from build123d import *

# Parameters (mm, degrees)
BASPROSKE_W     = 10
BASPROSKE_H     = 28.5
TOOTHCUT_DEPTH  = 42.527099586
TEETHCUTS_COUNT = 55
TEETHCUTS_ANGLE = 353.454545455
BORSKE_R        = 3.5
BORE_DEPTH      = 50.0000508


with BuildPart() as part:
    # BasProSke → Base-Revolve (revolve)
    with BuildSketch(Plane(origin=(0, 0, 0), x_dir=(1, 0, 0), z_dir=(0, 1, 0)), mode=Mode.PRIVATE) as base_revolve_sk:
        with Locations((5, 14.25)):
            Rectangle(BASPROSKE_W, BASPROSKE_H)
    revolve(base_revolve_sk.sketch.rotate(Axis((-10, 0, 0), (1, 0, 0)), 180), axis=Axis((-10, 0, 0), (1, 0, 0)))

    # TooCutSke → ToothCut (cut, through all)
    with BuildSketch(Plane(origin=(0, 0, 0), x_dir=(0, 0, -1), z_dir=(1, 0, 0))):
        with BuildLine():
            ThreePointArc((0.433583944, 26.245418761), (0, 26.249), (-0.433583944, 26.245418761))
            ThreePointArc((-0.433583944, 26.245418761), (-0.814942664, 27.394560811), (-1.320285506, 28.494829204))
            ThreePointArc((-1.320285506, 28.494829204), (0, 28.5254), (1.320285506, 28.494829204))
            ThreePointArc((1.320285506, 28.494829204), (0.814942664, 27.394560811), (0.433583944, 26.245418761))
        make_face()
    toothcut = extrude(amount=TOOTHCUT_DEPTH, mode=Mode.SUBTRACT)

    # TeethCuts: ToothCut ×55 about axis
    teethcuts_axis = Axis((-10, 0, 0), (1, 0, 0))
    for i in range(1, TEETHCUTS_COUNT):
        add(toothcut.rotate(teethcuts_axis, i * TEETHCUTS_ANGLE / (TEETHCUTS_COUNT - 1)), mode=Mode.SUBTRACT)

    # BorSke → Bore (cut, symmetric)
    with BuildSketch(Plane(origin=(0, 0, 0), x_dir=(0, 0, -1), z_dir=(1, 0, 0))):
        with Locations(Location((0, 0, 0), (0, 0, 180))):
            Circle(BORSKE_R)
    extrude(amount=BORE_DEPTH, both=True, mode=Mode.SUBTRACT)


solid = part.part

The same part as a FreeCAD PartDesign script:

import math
import FreeCAD as App
import Part
import Sketcher
from FreeCAD import Vector
Q = App.Units.Quantity

doc = App.newDocument("Part")
body = doc.addObject("PartDesign::Body", "Body")

sketch1 = body.newObject("Sketcher::SketchObject", "Sketch")
sketch1.AttachmentSupport = (doc.getObject("XZ_Plane"), [""])
sketch1.MapMode = "FlatFace"
sketch1.addGeometry([
    Part.LineSegment(Vector(0, -28, 0), Vector(0, 0, 0)),
    Part.LineSegment(Vector(0, 0, 0), Vector(10, 0, 0)),
    Part.LineSegment(Vector(10, 0, 0), Vector(10, -28, 0)),
    Part.LineSegment(Vector(10, -28, 0), Vector(0, -28, 0)),
], False)
sketch1.addConstraint([
    Sketcher.Constraint("Coincident", 0, 2, 1, 1),
    Sketcher.Constraint("Coincident", 1, 2, 2, 1),
    Sketcher.Constraint("Coincident", 2, 2, 3, 1),
    Sketcher.Constraint("Coincident", 3, 2, 0, 1),
    Sketcher.Constraint("Vertical", 0),
    Sketcher.Constraint("Horizontal", 1),
    Sketcher.Constraint("Vertical", 2),
    Sketcher.Constraint("Horizontal", 3),
    Sketcher.Constraint("Coincident", 0, 2, -1, 1),
    Sketcher.Constraint("DistanceX", 1, 1, 1, 2, Q("10 mm")),
    Sketcher.Constraint("DistanceY", 0, 1, 0, 2, Q("28.5 mm")),
])
revolution = body.newObject("PartDesign::Revolution", "Revolution")
revolution.Profile = sketch1
revolution.ReferenceAxis = (sketch1, ["H_Axis"])
revolution.Angle = 360

sketch2 = body.newObject("Sketcher::SketchObject", "Sketch001")
sketch2.AttachmentSupport = (doc.getObject("YZ_Plane"), [""])
sketch2.MapMode = "FlatFace"
sketch2.addGeometry([
    Part.ArcOfCircle(Part.Circle(Vector(0, 0, 0), Vector(0, 0, 1), 26.2), math.radians(-0.95), math.radians(0.95)),
    Part.ArcOfCircle(Part.Circle(Vector(23.4, -11, 0), Vector(0, 0, 1), 11), math.radians(62.18), math.radians(74.8)),
    Part.ArcOfCircle(Part.Circle(Vector(0, 0, 0), Vector(0, 0, 1), 28.5), math.radians(-2.65), math.radians(2.65)),
    Part.ArcOfCircle(Part.Circle(Vector(23.4, 11, 0), Vector(0, 0, 1), 11), math.radians(-74.8), math.radians(-62.18)),
], False)
sketch2.addConstraint([
    Sketcher.Constraint("Coincident", 0, 1, 1, 2),
    Sketcher.Constraint("Coincident", 1, 1, 2, 1),
    Sketcher.Constraint("Coincident", 2, 2, 3, 2),
    Sketcher.Constraint("Coincident", 3, 1, 0, 2),
    Sketcher.Constraint("Coincident", 0, 3, -1, 1),
    Sketcher.Constraint("Coincident", 2, 3, -1, 1),
    Sketcher.Constraint("Equal", 1, 3),
    Sketcher.Constraint("Symmetric", 1, 3, 3, 3, -1),
    Sketcher.Constraint("Radius", 1, Q("11 mm")),
    Sketcher.Constraint("Radius", 2, Q("28.5254 mm")),
    Sketcher.Constraint("Radius", 0, Q("26.248997 mm")),
    Sketcher.Constraint("DistanceY", 1, 3, 3, 3, Q("22.0971 mm")),
    Sketcher.Constraint("DistanceY", 1, 1, 0, 1, Q("0.886702 mm")),
])
pocket1 = body.newObject("PartDesign::Pocket", "Pocket")
pocket1.Profile = sketch2
pocket1.Type = "ThroughAll"
pocket1.Reversed = True
doc.recompute()

polarpattern = body.newObject("PartDesign::PolarPattern", "PolarPattern")
polarpattern.Originals = [pocket1]
polarpattern.Axis = (doc.getObject("X_Axis"), [""])
polarpattern.Angle = 360
polarpattern.Occurrences = 55
body.Tip = polarpattern

sketch3 = body.newObject("Sketcher::SketchObject", "Sketch002")
sketch3.AttachmentSupport = (doc.getObject("YZ_Plane"), [""])
sketch3.MapMode = "FlatFace"
sketch3.addGeometry(Part.Circle(Vector(0, 0, 0), Vector(0, 0, 1), 3.5), False)
sketch3.addConstraint([
    Sketcher.Constraint("Coincident", 0, 3, -1, 1),
    Sketcher.Constraint("Diameter", 0, Q("7 mm")),
])
pocket2 = body.newObject("PartDesign::Pocket", "Pocket001")
pocket2.Profile = sketch3
pocket2.Length = 100.000102
pocket2.Midplane = True

doc.recompute()
